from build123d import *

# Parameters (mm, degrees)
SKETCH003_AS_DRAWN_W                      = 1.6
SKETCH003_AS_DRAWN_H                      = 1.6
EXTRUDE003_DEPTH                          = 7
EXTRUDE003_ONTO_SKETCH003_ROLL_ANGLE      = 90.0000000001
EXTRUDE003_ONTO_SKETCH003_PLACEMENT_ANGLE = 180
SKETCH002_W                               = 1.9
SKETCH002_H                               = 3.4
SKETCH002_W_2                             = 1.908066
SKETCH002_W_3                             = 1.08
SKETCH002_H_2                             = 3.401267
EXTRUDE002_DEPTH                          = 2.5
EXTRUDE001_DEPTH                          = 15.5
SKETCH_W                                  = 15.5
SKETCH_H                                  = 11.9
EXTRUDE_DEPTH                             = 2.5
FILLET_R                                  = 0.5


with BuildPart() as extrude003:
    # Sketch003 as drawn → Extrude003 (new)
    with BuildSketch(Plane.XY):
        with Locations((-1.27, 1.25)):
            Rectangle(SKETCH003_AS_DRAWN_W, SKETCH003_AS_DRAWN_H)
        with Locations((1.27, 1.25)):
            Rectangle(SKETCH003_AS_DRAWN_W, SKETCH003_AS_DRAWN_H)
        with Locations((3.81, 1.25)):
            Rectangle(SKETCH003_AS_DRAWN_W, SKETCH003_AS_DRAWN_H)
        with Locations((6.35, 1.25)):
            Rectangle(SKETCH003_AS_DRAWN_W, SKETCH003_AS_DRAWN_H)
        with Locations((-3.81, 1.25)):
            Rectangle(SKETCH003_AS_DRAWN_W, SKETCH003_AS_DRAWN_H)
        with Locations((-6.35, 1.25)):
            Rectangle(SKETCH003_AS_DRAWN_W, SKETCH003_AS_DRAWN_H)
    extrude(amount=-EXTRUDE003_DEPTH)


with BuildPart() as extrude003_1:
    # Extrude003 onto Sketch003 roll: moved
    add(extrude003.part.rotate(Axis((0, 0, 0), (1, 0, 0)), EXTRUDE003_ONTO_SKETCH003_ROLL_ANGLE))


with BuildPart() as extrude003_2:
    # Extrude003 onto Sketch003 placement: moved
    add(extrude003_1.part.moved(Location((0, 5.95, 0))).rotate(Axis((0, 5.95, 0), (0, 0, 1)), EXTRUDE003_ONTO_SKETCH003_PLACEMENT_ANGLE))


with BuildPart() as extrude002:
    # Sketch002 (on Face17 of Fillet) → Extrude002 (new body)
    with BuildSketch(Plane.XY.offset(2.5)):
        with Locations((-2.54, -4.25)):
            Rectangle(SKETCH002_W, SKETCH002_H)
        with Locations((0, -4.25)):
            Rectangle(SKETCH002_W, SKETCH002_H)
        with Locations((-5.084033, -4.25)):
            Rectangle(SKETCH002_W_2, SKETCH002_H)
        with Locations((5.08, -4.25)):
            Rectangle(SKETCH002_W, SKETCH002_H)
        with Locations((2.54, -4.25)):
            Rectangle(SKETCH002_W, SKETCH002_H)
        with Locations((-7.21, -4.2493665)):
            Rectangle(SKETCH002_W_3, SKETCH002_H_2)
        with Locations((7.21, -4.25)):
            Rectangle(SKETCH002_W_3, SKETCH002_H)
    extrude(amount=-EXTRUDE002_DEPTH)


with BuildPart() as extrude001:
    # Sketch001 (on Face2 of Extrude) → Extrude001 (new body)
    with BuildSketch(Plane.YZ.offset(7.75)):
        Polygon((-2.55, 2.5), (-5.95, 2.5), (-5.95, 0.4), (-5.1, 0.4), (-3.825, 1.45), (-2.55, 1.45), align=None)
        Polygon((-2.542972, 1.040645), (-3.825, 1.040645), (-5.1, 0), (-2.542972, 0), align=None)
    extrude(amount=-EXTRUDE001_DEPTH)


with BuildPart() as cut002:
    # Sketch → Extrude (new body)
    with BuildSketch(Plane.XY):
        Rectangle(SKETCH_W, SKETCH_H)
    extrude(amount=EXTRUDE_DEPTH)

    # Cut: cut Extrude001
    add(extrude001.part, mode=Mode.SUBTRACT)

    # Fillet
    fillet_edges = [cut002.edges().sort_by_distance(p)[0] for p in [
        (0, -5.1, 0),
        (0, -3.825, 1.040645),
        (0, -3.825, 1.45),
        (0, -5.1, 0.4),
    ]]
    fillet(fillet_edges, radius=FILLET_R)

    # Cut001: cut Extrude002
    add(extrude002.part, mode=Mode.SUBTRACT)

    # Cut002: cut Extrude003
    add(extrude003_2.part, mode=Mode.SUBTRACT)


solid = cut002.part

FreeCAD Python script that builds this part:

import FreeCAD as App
import Part
import Sketcher

V = App.Vector
Q = App.Units.Quantity


def edges_at(feature, points):
    """Names of the edges that pass closest to the given points."""
    edges = feature.Shape.Edges
    near = lambda p: min(range(len(edges)), key=lambda i: edges[i].distToShape(Part.Vertex(*p))[0])
    return sorted({f"Edge{near(p) + 1}" for p in points})

doc = App.newDocument("Part")
body = doc.addObject("PartDesign::Body", "Body")
body.AllowCompound = True

sketch1 = body.newObject("Sketcher::SketchObject", "Sketch")
sketch1.AttachmentSupport = (doc.getObject("XY_Plane"), [""])
sketch1.MapMode = "FlatFace"
sketch1.addGeometry([
    Part.LineSegment(V(-2.07, 2.05, 0), V(-2.07, 0.45, 0)),
    Part.LineSegment(V(-2.07, 0.45, 0), V(-0.47, 0.45, 0)),
    Part.LineSegment(V(-0.47, 0.45, 0), V(-0.47, 2.05, 0)),
    Part.LineSegment(V(-0.47, 2.05, 0), V(-2.07, 2.05, 0)),
    Part.LineSegment(V(0.47, 2.05, 0), V(0.47, 0.45, 0)),
    Part.LineSegment(V(0.47, 0.45, 0), V(2.07, 0.45, 0)),
    Part.LineSegment(V(2.07, 0.45, 0), V(2.07, 2.05, 0)),
    Part.LineSegment(V(2.07, 2.05, 0), V(0.47, 2.05, 0)),
    Part.LineSegment(V(3.01, 2.05, 0), V(3.01, 0.45, 0)),
    Part.LineSegment(V(3.01, 0.45, 0), V(4.61, 0.45, 0)),
    Part.LineSegment(V(4.61, 0.45, 0), V(4.61, 2.05, 0)),
    Part.LineSegment(V(4.61, 2.05, 0), V(3.01, 2.05, 0)),
    Part.LineSegment(V(5.55, 2.05, 0), V(5.55, 0.45, 0)),
    Part.LineSegment(V(5.55, 0.45, 0), V(7.15, 0.45, 0)),
    Part.LineSegment(V(7.15, 0.45, 0), V(7.15, 2.05, 0)),
    Part.LineSegment(V(7.15, 2.05, 0), V(5.55, 2.05, 0)),
    Part.LineSegment(V(-4.61, 2.05, 0), V(-4.61, 0.45, 0)),
    Part.LineSegment(V(-4.61, 0.45, 0), V(-3.01, 0.45, 0)),
    Part.LineSegment(V(-3.01, 0.45, 0), V(-3.01, 2.05, 0)),
    Part.LineSegment(V(-3.01, 2.05, 0), V(-4.61, 2.05, 0)),
    Part.LineSegment(V(-7.15, 2.05, 0), V(-7.15, 0.45, 0)),
    Part.LineSegment(V(-7.15, 0.45, 0), V(-5.55, 0.45, 0)),
    Part.LineSegment(V(-5.55, 0.45, 0), V(-5.55, 2.05, 0)),
    Part.LineSegment(V(-5.55, 2.05, 0), V(-7.15, 2.05, 0)),
], False)
sketch1.addConstraint([
    Sketcher.Constraint("Coincident", 0, 2, 1, 1),
    Sketcher.Constraint("Coincident", 1, 2, 2, 1),
    Sketcher.Constraint("Coincident", 2, 2, 3, 1),
    Sketcher.Constraint("Coincident", 3, 2, 0, 1),
    Sketcher.Constraint("Coincident", 4, 2, 5, 1),
    Sketcher.Constraint("Coincident", 5, 2, 6, 1),
    Sketcher.Constraint("Coincident", 6, 2, 7, 1),
    Sketcher.Constraint("Coincident", 7, 2, 4, 1),
    Sketcher.Constraint("Coincident", 8, 2, 9, 1),
    Sketcher.Constraint("Coincident", 9, 2, 10, 1),
    Sketcher.Constraint("Coincident", 10, 2, 11, 1),
    Sketcher.Constraint("Coincident", 11, 2, 8, 1),
    Sketcher.Constraint("Coincident", 12, 2, 13, 1),
    Sketcher.Constraint("Coincident", 13, 2, 14, 1),
    Sketcher.Constraint("Coincident", 14, 2, 15, 1),
    Sketcher.Constraint("Coincident", 15, 2, 12, 1),
    Sketcher.Constraint("Coincident", 16, 2, 17, 1),
    Sketcher.Constraint("Coincident", 17, 2, 18, 1),
    Sketcher.Constraint("Coincident", 18, 2, 19, 1),
    Sketcher.Constraint("Coincident", 19, 2, 16, 1),
    Sketcher.Constraint("Coincident", 20, 2, 21, 1),
    Sketcher.Constraint("Coincident", 21, 2, 22, 1),
    Sketcher.Constraint("Coincident", 22, 2, 23, 1),
    Sketcher.Constraint("Coincident", 23, 2, 20, 1),
    Sketcher.Constraint("Vertical", 0),
    Sketcher.Constraint("Horizontal", 1),
    Sketcher.Constraint("Vertical", 2),
    Sketcher.Constraint("Horizontal", 3),
    Sketcher.Constraint("Vertical", 4),
    Sketcher.Constraint("Horizontal", 5),
    Sketcher.Constraint("Vertical", 6),
    Sketcher.Constraint("Horizontal", 7),
    Sketcher.Constraint("Vertical", 8),
    Sketcher.Constraint("Horizontal", 9),
    Sketcher.Constraint("Vertical", 10),
    Sketcher.Constraint("Horizontal", 11),
    Sketcher.Constraint("Vertical", 12),
    Sketcher.Constraint("Horizontal", 13),
    Sketcher.Constraint("Vertical", 14),
    Sketcher.Constraint("Horizontal", 15),
    Sketcher.Constraint("Vertical", 16),
    Sketcher.Constraint("Horizontal", 17),
    Sketcher.Constraint("Vertical", 18),
    Sketcher.Constraint("Horizontal", 19),
    Sketcher.Constraint("Vertical", 20),
    Sketcher.Constraint("Horizontal", 21),
    Sketcher.Constraint("Vertical", 22),
    Sketcher.Constraint("Horizontal", 23),
    Sketcher.Constraint("Symmetric", 1, 2, 4, 2, -2),
    Sketcher.Constraint("Symmetric", 3, 2, 6, 2, -2),
    Sketcher.Constraint("Symmetric", 9, 2, 16, 2, -2),
    Sketcher.Constraint("Symmetric", 11, 2, 18, 2, -2),
    Sketcher.Constraint("Symmetric", 13, 2, 20, 2, -2),
    Sketcher.Constraint("Symmetric", 15, 2, 22, 2, -2),
    Sketcher.Constraint("Horizontal", 5, 2, 8, 2),
    Sketcher.Constraint("Horizontal", 7, 2, 10, 2),
    Sketcher.Constraint("Horizontal", 9, 2, 12, 2),
    Sketcher.Constraint("Horizontal", 11, 2, 14, 2),
    Sketcher.Constraint("Equal", 7, 9),
    Sketcher.Constraint("Equal", 11, 13),
    Sketcher.Constraint("Equal", 23, 0),
    Sketcher.Constraint("DistanceX", 1, 1, 1, 2, Q("1.6 mm")),
    Sketcher.Constraint("DistanceX", 0, 2, -1, 1, Q("2.07 mm")),
    Sketcher.Constraint("DistanceY", -1, 1, 0, 2, Q("0.45 mm")),
    Sketcher.Constraint("DistanceX", -1, 1, 8, 2, Q("3.01 mm")),
    Sketcher.Constraint("DistanceX", -1, 1, 12, 2, Q("5.55 mm")),
])
pad1 = body.newObject("PartDesign::Pad", "Pad")
pad1.Profile = sketch1
pad1.Length = 7
pad1.Reversed = True
body2 = doc.addObject("PartDesign::Body", "Body001")
body2.AllowCompound = True
doc.recompute()

body.Placement = App.Placement(V(0, 0, 0), App.Rotation(V(1, 0, 0), 90))
boolean = body2.newObject("PartDesign::Boolean", "Boolean")
boolean.Type = "Fuse"
boolean.addObjects([body])
body3 = doc.addObject("PartDesign::Body", "Body002")
body3.AllowCompound = True
doc.recompute()

body2.Placement = App.Placement(V(0, 5.95, 0), App.Rotation(V(0, 0, 1), 180))
boolean2 = body3.newObject("PartDesign::Boolean", "Boolean001")
boolean2.Type = "Fuse"
boolean2.addObjects([body2])
body4 = doc.addObject("PartDesign::Body", "Body003")
body4.AllowCompound = True

sketch2 = body4.newObject("Sketcher::SketchObject", "Sketch001")
sketch2.AttachmentSupport = (doc.getObject("XY_Plane003"), [""])
sketch2.MapMode = "FlatFace"
sketch2.AttachmentOffset = App.Placement(V(0, 0, 2.5), App.Rotation())
sketch2.addGeometry([
    Part.LineSegment(V(-3.49, -2.55, 0), V(-3.49, -5.95, 0)),
    Part.LineSegment(V(-3.49, -5.95, 0), V(-1.59, -5.95, 0)),
    Part.LineSegment(V(-1.59, -5.95, 0), V(-1.59, -2.55, 0)),
    Part.LineSegment(V(-1.59, -2.55, 0), V(-3.49, -2.55, 0)),
    Part.LineSegment(V(-0.95, -2.55, 0), V(-0.95, -5.95, 0)),
    Part.LineSegment(V(-0.95, -5.95, 0), V(0.95, -5.95, 0)),
    Part.LineSegment(V(0.95, -5.95, 0), V(0.95, -2.55, 0)),
    Part.LineSegment(V(0.95, -2.55, 0), V(-0.95, -2.55, 0)),
    Part.LineSegment(V(-6.038066, -2.55, 0), V(-6.038066, -5.95, 0)),
    Part.LineSegment(V(-6.038066, -5.95, 0), V(-4.13, -5.95, 0)),
    Part.LineSegment(V(-4.13, -5.95, 0), V(-4.13, -2.55, 0)),
    Part.LineSegment(V(-4.13, -2.55, 0), V(-6.038066, -2.55, 0)),
    Part.LineSegment(V(4.13, -2.55, 0), V(4.13, -5.95, 0)),
    Part.LineSegment(V(4.13, -5.95, 0), V(6.03, -5.95, 0)),
    Part.LineSegment(V(6.03, -5.95, 0), V(6.03, -2.55, 0)),
    Part.LineSegment(V(6.03, -2.55, 0), V(4.13, -2.55, 0)),
    Part.LineSegment(V(1.59, -2.55, 0), V(1.59, -5.95, 0)),
    Part.LineSegment(V(1.59, -5.95, 0), V(3.49, -5.95, 0)),
    Part.LineSegment(V(3.49, -5.95, 0), V(3.49, -2.55, 0)),
    Part.LineSegment(V(3.49, -2.55, 0), V(1.59, -2.55, 0)),
    Part.LineSegment(V(-7.75, -2.548733, 0), V(-7.75, -5.95, 0)),
    Part.LineSegment(V(-7.75, -5.95, 0), V(-6.67, -5.95, 0)),
    Part.LineSegment(V(-6.67, -5.95, 0), V(-6.67, -2.548733, 0)),
    Part.LineSegment(V(-6.67, -2.548733, 0), V(-7.75, -2.548733, 0)),
    Part.LineSegment(V(6.67, -2.55, 0), V(6.67, -5.95, 0)),
    Part.LineSegment(V(6.67, -5.95, 0), V(7.75, -5.95, 0)),
    Part.LineSegment(V(7.75, -5.95, 0), V(7.75, -2.55, 0)),
    Part.LineSegment(V(7.75, -2.55, 0), V(6.67, -2.55, 0)),
], False)
sketch2.addConstraint([
    Sketcher.Constraint("Coincident", 0, 2, 1, 1),
    Sketcher.Constraint("Coincident", 1, 2, 2, 1),
    Sketcher.Constraint("Coincident", 2, 2, 3, 1),
    Sketcher.Constraint("Coincident", 3, 2, 0, 1),
    Sketcher.Constraint("Coincident", 4, 2, 5, 1),
    Sketcher.Constraint("Coincident", 5, 2, 6, 1),
    Sketcher.Constraint("Coincident", 6, 2, 7, 1),
    Sketcher.Constraint("Coincident", 7, 2, 4, 1),
    Sketcher.Constraint("Coincident", 8, 2, 9, 1),
    Sketcher.Constraint("Coincident", 9, 2, 10, 1),
    Sketcher.Constraint("Coincident", 10, 2, 11, 1),
    Sketcher.Constraint("Coincident", 11, 2, 8, 1),
    Sketcher.Constraint("Coincident", 12, 2, 13, 1),
    Sketcher.Constraint("Coincident", 13, 2, 14, 1),
    Sketcher.Constraint("Coincident", 14, 2, 15, 1),
    Sketcher.Constraint("Coincident", 15, 2, 12, 1),
    Sketcher.Constraint("Coincident", 16, 2, 17, 1),
    Sketcher.Constraint("Coincident", 17, 2, 18, 1),
    Sketcher.Constraint("Coincident", 18, 2, 19, 1),
    Sketcher.Constraint("Coincident", 19, 2, 16, 1),
    Sketcher.Constraint("Coincident", 20, 2, 21, 1),
    Sketcher.Constraint("Coincident", 21, 2, 22, 1),
    Sketcher.Constraint("Coincident", 22, 2, 23, 1),
    Sketcher.Constraint("Coincident", 23, 2, 20, 1),
    Sketcher.Constraint("Coincident", 24, 2, 25, 1),
    Sketcher.Constraint("Coincident", 25, 2, 26, 1),
    Sketcher.Constraint("Coincident", 26, 2, 27, 1),
    Sketcher.Constraint("Coincident", 27, 2, 24, 1),
    Sketcher.Constraint("Vertical", 0),
    Sketcher.Constraint("Horizontal", 1),
    Sketcher.Constraint("Vertical", 2),
    Sketcher.Constraint("Horizontal", 3),
    Sketcher.Constraint("Vertical", 4),
    Sketcher.Constraint("Horizontal", 5),
    Sketcher.Constraint("Vertical", 6),
    Sketcher.Constraint("Horizontal", 7),
    Sketcher.Constraint("Vertical", 8),
    Sketcher.Constraint("Horizontal", 9),
    Sketcher.Constraint("Vertical", 10),
    Sketcher.Constraint("Horizontal", 11),
    Sketcher.Constraint("Vertical", 12),
    Sketcher.Constraint("Horizontal", 13),
    Sketcher.Constraint("Vertical", 14),
    Sketcher.Constraint("Horizontal", 15),
    Sketcher.Constraint("Vertical", 16),
    Sketcher.Constraint("Horizontal", 17),
    Sketcher.Constraint("Vertical", 18),
    Sketcher.Constraint("Horizontal", 19),
    Sketcher.Constraint("Vertical", 20),
    Sketcher.Constraint("Horizontal", 21),
    Sketcher.Constraint("Vertical", 22),
    Sketcher.Constraint("Horizontal", 23),
    Sketcher.Constraint("Vertical", 24),
    Sketcher.Constraint("Horizontal", 25),
    Sketcher.Constraint("Vertical", 26),
    Sketcher.Constraint("Horizontal", 27),
    Sketcher.Constraint("Symmetric", 9, 2, 12, 2, -2),
    Sketcher.Constraint("Symmetric", 1, 2, 16, 2, -2),
    Sketcher.Constraint("Symmetric", 3, 2, 18, 2, -2),
    Sketcher.Constraint("Symmetric", 21, 2, 24, 2, -2),
    Sketcher.Constraint("Horizontal", 1, 2, 4, 2),
    Sketcher.Constraint("Horizontal", 3, 2, 6, 2),
    Sketcher.Constraint("Horizontal", 5, 2, 8, 2),
    Sketcher.Constraint("Horizontal", 7, 2, 10, 2),
    Sketcher.Constraint("Horizontal", 11, 2, 14, 2),
    Sketcher.Constraint("Horizontal", 17, 2, 20, 2),
    Sketcher.Constraint("Horizontal", 19, 2, 26, 2),
    Sketcher.Constraint("Equal", 3, 5),
    Sketcher.Constraint("Equal", 7, 13),
    Sketcher.Constraint("Equal", 23, 25),
    Sketcher.Constraint("DistanceX", 1, 1, 1, 2, Q("1.9 mm")),
    Sketcher.Constraint("DistanceY", 0, 2, 0, 1, Q("3.4 mm")),
    Sketcher.Constraint("DistanceX", 21, 1, 21, 2, Q("1.08 mm")),
    Sketcher.Constraint("DistanceX", 0, 2, -1, 1, Q("3.49 mm")),
    Sketcher.Constraint("DistanceY", 0, 2, -1, 1, Q("5.95 mm")),
    Sketcher.Constraint("DistanceX", 4, 2, -1, 1, Q("0.95 mm")),
    Sketcher.Constraint("DistanceX", 9, 2, -1, 1, Q("4.13 mm")),
    Sketcher.Constraint("DistanceX", 20, 2, -1, 1, Q("7.75 mm")),
    Sketcher.Constraint("DistanceX", 9, 1, 9, 2, Q("1.908066 mm")),
    Sketcher.Constraint("DistanceY", 20, 2, 20, 1, Q("3.401267 mm")),
])
pad2 = body4.newObject("PartDesign::Pad", "Pad001")
pad2.Profile = sketch2
pad2.Length = 2.5
pad2.Reversed = True
body5 = doc.addObject("PartDesign::Body", "Body004")
body5.AllowCompound = True

sketch3 = body5.newObject("Sketcher::SketchObject", "Sketch002")
sketch3.AttachmentSupport = (doc.getObject("YZ_Plane004"), [""])
sketch3.MapMode = "FlatFace"
sketch3.AttachmentOffset = App.Placement(V(0, 0, 7.75), App.Rotation())
sketch3.addGeometry([
    Part.LineSegment(V(-2.55, 2.5, 0), V(-5.95, 2.5, 0)),
    Part.LineSegment(V(-5.95, 2.5, 0), V(-5.95, 0.4, 0)),
    Part.LineSegment(V(-5.95, 0.4, 0), V(-5.1, 0.4, 0)),
    Part.LineSegment(V(-5.1, 0.4, 0), V(-3.825, 1.45, 0)),
    Part.LineSegment(V(-3.825, 1.45, 0), V(-2.55, 1.45, 0)),
    Part.LineSegment(V(-2.55, 1.45, 0), V(-2.55, 2.5, 0)),
    Part.LineSegment(V(-2.542972, 1.040645, 0), V(-3.825, 1.040645, 0)),
    Part.LineSegment(V(-3.825, 1.040645, 0), V(-5.1, 0, 0)),
    Part.LineSegment(V(-5.1, 0, 0), V(-2.542972, 0, 0)),
    Part.LineSegment(V(-2.542972, 0, 0), V(-2.542972, 1.040645, 0)),
], False)
sketch3.addConstraint([
    Sketcher.Constraint("Coincident", 0, 2, 1, 1),
    Sketcher.Constraint("Coincident", 1, 2, 2, 1),
    Sketcher.Constraint("Coincident", 2, 2, 3, 1),
    Sketcher.Constraint("Coincident", 3, 2, 4, 1),
    Sketcher.Constraint("Coincident", 4, 2, 5, 1),
    Sketcher.Constraint("Coincident", 5, 2, 0, 1),
    Sketcher.Constraint("Coincident", 6, 2, 7, 1),
    Sketcher.Constraint("Coincident", 7, 2, 8, 1),
    Sketcher.Constraint("Coincident", 8, 2, 9, 1),
    Sketcher.Constraint("Coincident", 9, 2, 6, 1),
    Sketcher.Constraint("Horizontal", 0),
    Sketcher.Constraint("Vertical", 1),
    Sketcher.Constraint("Horizontal", 2),
    Sketcher.Constraint("Horizontal", 4),
    Sketcher.Constraint("Vertical", 5),
    Sketcher.Constraint("Horizontal", 6),
    Sketcher.Constraint("Horizontal", 8),
    Sketcher.Constraint("Vertical", 9),
    Sketcher.Constraint("PointOnObject", 7, 2, -1),
    Sketcher.Constraint("Vertical", 3, 2, 6, 2),
    Sketcher.Constraint("Vertical", 2, 2, 7, 2),
    Sketcher.Constraint("DistanceX", 0, 2, 0, 1, Q("3.4 mm")),
    Sketcher.Constraint("DistanceY", 1, 2, 1, 1, Q("2.1 mm")),
    Sketcher.Constraint("DistanceX", 2, 1, 2, 2, Q("0.85 mm")),
    Sketcher.Constraint("DistanceY", 5, 1, 5, 2, Q("1.05 mm")),
    Sketcher.Constraint("DistanceY", -1, 1, 0, 2, Q("2.5 mm")),
    Sketcher.Constraint("DistanceX", 2, 2, -1, 1, Q("5.1 mm")),
    Sketcher.Constraint("DistanceX", 4, 1, 4, 2, Q("1.275 mm")),
    Sketcher.Constraint("DistanceX", 6, 2, 6, 1, Q("1.282028 mm")),
    Sketcher.Constraint("DistanceY", 9, 1, 9, 2, Q("1.040645 mm")),
])
pad3 = body5.newObject("PartDesign::Pad", "Pad002")
pad3.Profile = sketch3
pad3.Length = 15.5
pad3.Reversed = True
body6 = doc.addObject("PartDesign::Body", "Body005")

sketch4 = body6.newObject("Sketcher::SketchObject", "Sketch003")
sketch4.AttachmentSupport = (doc.getObject("XY_Plane005"), [""])
sketch4.MapMode = "FlatFace"
sketch4.addGeometry([
    Part.LineSegment(V(-7.75, 5.95, 0), V(-7.75, -5.95, 0)),
    Part.LineSegment(V(-7.75, -5.95, 0), V(7.75, -5.95, 0)),
    Part.LineSegment(V(7.75, -5.95, 0), V(7.75, 5.95, 0)),
    Part.LineSegment(V(7.75, 5.95, 0), V(-7.75, 5.95, 0)),
], False)
sketch4.addConstraint([
    Sketcher.Constraint("Coincident", 0, 2, 1, 1),
    Sketcher.Constraint("Coincident", 1, 2, 2, 1),
    Sketcher.Constraint("Coincident", 2, 2, 3, 1),
    Sketcher.Constraint("Coincident", 3, 2, 0, 1),
    Sketcher.Constraint("Vertical", 0),
    Sketcher.Constraint("Horizontal", 1),
    Sketcher.Constraint("Vertical", 2),
    Sketcher.Constraint("Horizontal", 3),
    Sketcher.Constraint("Symmetric", 0, 2, 2, 2, -1, 1),
    Sketcher.Constraint("DistanceX", 1, 1, 1, 2, Q("15.5 mm")),
    Sketcher.Constraint("DistanceY", 0, 2, 0, 1, Q("11.9 mm")),
])
pad4 = body6.newObject("PartDesign::Pad", "Pad003")
pad4.Profile = sketch4
pad4.Length = 2.5
doc.recompute()

boolean3 = body6.newObject("PartDesign::Boolean", "Boolean002")
boolean3.Type = "Cut"
boolean3.addObjects([body5])
doc.recompute()

fillet = body6.newObject("PartDesign::Fillet", "Fillet")
fillet.Base = (boolean3, edges_at(boolean3, [
    (0, -5.1, 0),
    (0, -3.825, 1.041),
    (0, -3.825, 1.45),
    (0, -5.1, 0.4),
]))
fillet.Radius = 0.5
doc.recompute()

boolean4 = body6.newObject("PartDesign::Boolean", "Boolean003")
boolean4.Type = "Cut"
boolean4.addObjects([body4])
doc.recompute()

boolean5 = body6.newObject("PartDesign::Boolean", "Boolean004")
boolean5.Type = "Cut"
boolean5.addObjects([body3])

doc.recompute()
